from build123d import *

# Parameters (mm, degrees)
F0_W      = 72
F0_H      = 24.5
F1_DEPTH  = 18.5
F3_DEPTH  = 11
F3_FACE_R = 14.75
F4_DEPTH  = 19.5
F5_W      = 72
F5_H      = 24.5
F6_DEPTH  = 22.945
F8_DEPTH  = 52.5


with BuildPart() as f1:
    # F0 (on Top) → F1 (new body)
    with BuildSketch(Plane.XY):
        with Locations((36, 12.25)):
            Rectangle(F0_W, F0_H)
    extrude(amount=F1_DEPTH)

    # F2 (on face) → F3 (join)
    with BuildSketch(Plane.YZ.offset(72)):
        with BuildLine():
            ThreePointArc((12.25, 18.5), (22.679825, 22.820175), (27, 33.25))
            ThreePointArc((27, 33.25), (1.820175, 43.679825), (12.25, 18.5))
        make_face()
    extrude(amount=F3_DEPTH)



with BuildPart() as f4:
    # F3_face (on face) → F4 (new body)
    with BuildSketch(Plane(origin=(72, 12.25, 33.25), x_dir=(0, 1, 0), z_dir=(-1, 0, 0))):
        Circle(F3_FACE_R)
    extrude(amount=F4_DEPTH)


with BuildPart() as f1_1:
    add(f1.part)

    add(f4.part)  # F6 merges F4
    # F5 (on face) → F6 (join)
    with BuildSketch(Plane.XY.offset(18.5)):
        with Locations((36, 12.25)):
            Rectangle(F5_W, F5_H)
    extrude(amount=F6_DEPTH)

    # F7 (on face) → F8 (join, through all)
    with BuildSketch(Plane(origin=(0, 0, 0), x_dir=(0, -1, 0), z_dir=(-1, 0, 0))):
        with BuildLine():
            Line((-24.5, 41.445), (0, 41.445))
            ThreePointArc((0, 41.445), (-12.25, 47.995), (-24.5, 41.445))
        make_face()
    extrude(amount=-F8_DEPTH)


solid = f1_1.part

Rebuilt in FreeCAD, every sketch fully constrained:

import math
import FreeCAD as App
import Part
import Sketcher

V = App.Vector
Q = App.Units.Quantity

doc = App.newDocument("Part")
body = doc.addObject("PartDesign::Body", "Body")
body.AllowCompound = True

sketch1 = doc.addObject("Sketcher::SketchObject", "Sketch")
body.addObject(sketch1)
sketch1.AttachmentSupport = (doc.XY_Plane, [""])
sketch1.MapMode = "FlatFace"
sketch1.addGeometry([
    Part.LineSegment(V(0, 24.5, 0), V(0, 0, 0)),
    Part.LineSegment(V(0, 0, 0), V(72, 0, 0)),
    Part.LineSegment(V(72, 0, 0), V(72, 24.5, 0)),
    Part.LineSegment(V(72, 24.5, 0), V(0, 24.5, 0)),
], False)
sketch1.addConstraint([
    Sketcher.Constraint("Coincident", 0, 2, 1, 1),
    Sketcher.Constraint("Coincident", 1, 2, 2, 1),
    Sketcher.Constraint("Coincident", 2, 2, 3, 1),
    Sketcher.Constraint("Coincident", 3, 2, 0, 1),
    Sketcher.Constraint("Vertical", 0),
    Sketcher.Constraint("Horizontal", 1),
    Sketcher.Constraint("Vertical", 2),
    Sketcher.Constraint("Horizontal", 3),
    Sketcher.Constraint("Coincident", 0, 2, -1, 1),
    Sketcher.Constraint("DistanceX", 1, 1, 1, 2, Q("72 mm")),
    Sketcher.Constraint("DistanceY", 0, 2, 0, 1, Q("24.5 mm")),
])
pad1 = doc.addObject("PartDesign::Pad", "Pad")
body.addObject(pad1)
pad1.Profile = sketch1
pad1.Length = 18.5

sketch2 = doc.addObject("Sketcher::SketchObject", "Sketch001")
body.addObject(sketch2)
sketch2.AttachmentSupport = (doc.YZ_Plane, [""])
sketch2.MapMode = "FlatFace"
sketch2.AttachmentOffset = App.Placement(V(0, 0, 72), App.Rotation())
sketch2.addGeometry([
    Part.ArcOfCircle(Part.Circle(V(12.25, 33.25, 0), V(0, 0, 1), 14.75), math.radians(-90), math.radians(0)),
    Part.ArcOfCircle(Part.Circle(V(12.25, 33.25, 0), V(0, 0, 1), 14.75), math.radians(0), math.radians(270)),
], False)
sketch2.addConstraint([
    Sketcher.Constraint("Tangent", 0, 1, 1, 2),
    Sketcher.Constraint("Coincident", 1, 1, 0, 2),
    Sketcher.Constraint("Horizontal", 0, 3, 1, 1),
    Sketcher.Constraint("Vertical", 1, 3, 0, 1),
    Sketcher.Constraint("Radius", 0, Q("14.75 mm")),
    Sketcher.Constraint("DistanceX", -1, 1, 1, 1, Q("27 mm")),
    Sketcher.Constraint("DistanceY", -1, 1, 0, 1, Q("18.5 mm")),
])
pad2 = doc.addObject("PartDesign::Pad", "Pad001")
body.addObject(pad2)
pad2.Profile = sketch2
pad2.Length = 11
body2 = doc.addObject("PartDesign::Body", "Body001")

sketch3 = doc.addObject("Sketcher::SketchObject", "Sketch002")
body2.addObject(sketch3)
sketch3.AttachmentSupport = (doc.getObject("YZ_Plane001"), [""])
sketch3.MapMode = "FlatFace"
sketch3.AttachmentOffset = App.Placement(V(0, 0, 72), App.Rotation())
sketch3.addGeometry(Part.Circle(V(12.25, 33.25, 0), V(0, 0, 1), 14.75), False)
sketch3.addConstraint([
    Sketcher.Constraint("Diameter", 0, Q("29.5 mm")),
    Sketcher.Constraint("DistanceX", -1, 1, 0, 3, Q("12.25 mm")),
    Sketcher.Constraint("DistanceY", -1, 1, 0, 3, Q("33.25 mm")),
])
pad3 = doc.addObject("PartDesign::Pad", "Pad002")
body2.addObject(pad3)
pad3.Profile = sketch3
pad3.Length = 19.5
pad3.Reversed = True
body.AllowCompound = True
doc.recompute()

boolean = doc.addObject("PartDesign::Boolean", "Boolean")
body.addObject(boolean)
boolean.Type = "Fuse"
boolean.addObjects([body2])

sketch4 = doc.addObject("Sketcher::SketchObject", "Sketch003")
body.addObject(sketch4)
sketch4.AttachmentSupport = (doc.XY_Plane, [""])
sketch4.MapMode = "FlatFace"
sketch4.AttachmentOffset = App.Placement(V(0, 0, 18.5), App.Rotation())
sketch4.addGeometry([
    Part.LineSegment(V(0, 24.5, 0), V(0, 0, 0)),
    Part.LineSegment(V(0, 0, 0), V(72, 0, 0)),
    Part.LineSegment(V(72, 0, 0), V(72, 24.5, 0)),
    Part.LineSegment(V(72, 24.5, 0), V(0, 24.5, 0)),
], False)
sketch4.addConstraint([
    Sketcher.Constraint("Coincident", 0, 2, 1, 1),
    Sketcher.Constraint("Coincident", 1, 2, 2, 1),
    Sketcher.Constraint("Coincident", 2, 2, 3, 1),
    Sketcher.Constraint("Coincident", 3, 2, 0, 1),
    Sketcher.Constraint("Vertical", 0),
    Sketcher.Constraint("Horizontal", 1),
    Sketcher.Constraint("Vertical", 2),
    Sketcher.Constraint("Horizontal", 3),
    Sketcher.Constraint("Coincident", 0, 2, -1, 1),
    Sketcher.Constraint("DistanceX", 1, 1, 1, 2, Q("72 mm")),
    Sketcher.Constraint("DistanceY", 0, 2, 0, 1, Q("24.5 mm")),
])
pad4 = doc.addObject("PartDesign::Pad", "Pad003")
body.addObject(pad4)
pad4.Profile = sketch4
pad4.Length = 22.945

sketch5 = doc.addObject("Sketcher::SketchObject", "Sketch004")
body.addObject(sketch5)
sketch5.AttachmentSupport = (doc.YZ_Plane, [""])
sketch5.MapMode = "FlatFace"
sketch5.addGeometry([
    Part.LineSegment(V(24.5, 41.445, 0), V(0, 41.445, 0)),
    Part.ArcOfCircle(Part.Circle(V(12.25, 33.264847, 0), V(0, 0, 1), 14.730153), math.radians(33.733714), math.radians(146.266286)),
], False)
sketch5.addConstraint([
    Sketcher.Constraint("Coincident", 0, 1, 1, 1),
    Sketcher.Constraint("Coincident", 1, 2, 0, 2),
    Sketcher.Constraint("Horizontal", 0),
    Sketcher.Constraint("PointOnObject", 1, 2, -2),
    Sketcher.Constraint("DistanceX", 0, 2, 0, 1, Q("24.5 mm")),
    Sketcher.Constraint("DistanceY", -1, 1, 0, 1, Q("41.445 mm")),
    Sketcher.Constraint("Radius", 1, Q("14.730153 mm")),
])
pad5 = doc.addObject("PartDesign::Pad", "Pad004")
body.addObject(pad5)
pad5.Profile = sketch5
pad5.Type = "UpToLast"

doc.recompute()
